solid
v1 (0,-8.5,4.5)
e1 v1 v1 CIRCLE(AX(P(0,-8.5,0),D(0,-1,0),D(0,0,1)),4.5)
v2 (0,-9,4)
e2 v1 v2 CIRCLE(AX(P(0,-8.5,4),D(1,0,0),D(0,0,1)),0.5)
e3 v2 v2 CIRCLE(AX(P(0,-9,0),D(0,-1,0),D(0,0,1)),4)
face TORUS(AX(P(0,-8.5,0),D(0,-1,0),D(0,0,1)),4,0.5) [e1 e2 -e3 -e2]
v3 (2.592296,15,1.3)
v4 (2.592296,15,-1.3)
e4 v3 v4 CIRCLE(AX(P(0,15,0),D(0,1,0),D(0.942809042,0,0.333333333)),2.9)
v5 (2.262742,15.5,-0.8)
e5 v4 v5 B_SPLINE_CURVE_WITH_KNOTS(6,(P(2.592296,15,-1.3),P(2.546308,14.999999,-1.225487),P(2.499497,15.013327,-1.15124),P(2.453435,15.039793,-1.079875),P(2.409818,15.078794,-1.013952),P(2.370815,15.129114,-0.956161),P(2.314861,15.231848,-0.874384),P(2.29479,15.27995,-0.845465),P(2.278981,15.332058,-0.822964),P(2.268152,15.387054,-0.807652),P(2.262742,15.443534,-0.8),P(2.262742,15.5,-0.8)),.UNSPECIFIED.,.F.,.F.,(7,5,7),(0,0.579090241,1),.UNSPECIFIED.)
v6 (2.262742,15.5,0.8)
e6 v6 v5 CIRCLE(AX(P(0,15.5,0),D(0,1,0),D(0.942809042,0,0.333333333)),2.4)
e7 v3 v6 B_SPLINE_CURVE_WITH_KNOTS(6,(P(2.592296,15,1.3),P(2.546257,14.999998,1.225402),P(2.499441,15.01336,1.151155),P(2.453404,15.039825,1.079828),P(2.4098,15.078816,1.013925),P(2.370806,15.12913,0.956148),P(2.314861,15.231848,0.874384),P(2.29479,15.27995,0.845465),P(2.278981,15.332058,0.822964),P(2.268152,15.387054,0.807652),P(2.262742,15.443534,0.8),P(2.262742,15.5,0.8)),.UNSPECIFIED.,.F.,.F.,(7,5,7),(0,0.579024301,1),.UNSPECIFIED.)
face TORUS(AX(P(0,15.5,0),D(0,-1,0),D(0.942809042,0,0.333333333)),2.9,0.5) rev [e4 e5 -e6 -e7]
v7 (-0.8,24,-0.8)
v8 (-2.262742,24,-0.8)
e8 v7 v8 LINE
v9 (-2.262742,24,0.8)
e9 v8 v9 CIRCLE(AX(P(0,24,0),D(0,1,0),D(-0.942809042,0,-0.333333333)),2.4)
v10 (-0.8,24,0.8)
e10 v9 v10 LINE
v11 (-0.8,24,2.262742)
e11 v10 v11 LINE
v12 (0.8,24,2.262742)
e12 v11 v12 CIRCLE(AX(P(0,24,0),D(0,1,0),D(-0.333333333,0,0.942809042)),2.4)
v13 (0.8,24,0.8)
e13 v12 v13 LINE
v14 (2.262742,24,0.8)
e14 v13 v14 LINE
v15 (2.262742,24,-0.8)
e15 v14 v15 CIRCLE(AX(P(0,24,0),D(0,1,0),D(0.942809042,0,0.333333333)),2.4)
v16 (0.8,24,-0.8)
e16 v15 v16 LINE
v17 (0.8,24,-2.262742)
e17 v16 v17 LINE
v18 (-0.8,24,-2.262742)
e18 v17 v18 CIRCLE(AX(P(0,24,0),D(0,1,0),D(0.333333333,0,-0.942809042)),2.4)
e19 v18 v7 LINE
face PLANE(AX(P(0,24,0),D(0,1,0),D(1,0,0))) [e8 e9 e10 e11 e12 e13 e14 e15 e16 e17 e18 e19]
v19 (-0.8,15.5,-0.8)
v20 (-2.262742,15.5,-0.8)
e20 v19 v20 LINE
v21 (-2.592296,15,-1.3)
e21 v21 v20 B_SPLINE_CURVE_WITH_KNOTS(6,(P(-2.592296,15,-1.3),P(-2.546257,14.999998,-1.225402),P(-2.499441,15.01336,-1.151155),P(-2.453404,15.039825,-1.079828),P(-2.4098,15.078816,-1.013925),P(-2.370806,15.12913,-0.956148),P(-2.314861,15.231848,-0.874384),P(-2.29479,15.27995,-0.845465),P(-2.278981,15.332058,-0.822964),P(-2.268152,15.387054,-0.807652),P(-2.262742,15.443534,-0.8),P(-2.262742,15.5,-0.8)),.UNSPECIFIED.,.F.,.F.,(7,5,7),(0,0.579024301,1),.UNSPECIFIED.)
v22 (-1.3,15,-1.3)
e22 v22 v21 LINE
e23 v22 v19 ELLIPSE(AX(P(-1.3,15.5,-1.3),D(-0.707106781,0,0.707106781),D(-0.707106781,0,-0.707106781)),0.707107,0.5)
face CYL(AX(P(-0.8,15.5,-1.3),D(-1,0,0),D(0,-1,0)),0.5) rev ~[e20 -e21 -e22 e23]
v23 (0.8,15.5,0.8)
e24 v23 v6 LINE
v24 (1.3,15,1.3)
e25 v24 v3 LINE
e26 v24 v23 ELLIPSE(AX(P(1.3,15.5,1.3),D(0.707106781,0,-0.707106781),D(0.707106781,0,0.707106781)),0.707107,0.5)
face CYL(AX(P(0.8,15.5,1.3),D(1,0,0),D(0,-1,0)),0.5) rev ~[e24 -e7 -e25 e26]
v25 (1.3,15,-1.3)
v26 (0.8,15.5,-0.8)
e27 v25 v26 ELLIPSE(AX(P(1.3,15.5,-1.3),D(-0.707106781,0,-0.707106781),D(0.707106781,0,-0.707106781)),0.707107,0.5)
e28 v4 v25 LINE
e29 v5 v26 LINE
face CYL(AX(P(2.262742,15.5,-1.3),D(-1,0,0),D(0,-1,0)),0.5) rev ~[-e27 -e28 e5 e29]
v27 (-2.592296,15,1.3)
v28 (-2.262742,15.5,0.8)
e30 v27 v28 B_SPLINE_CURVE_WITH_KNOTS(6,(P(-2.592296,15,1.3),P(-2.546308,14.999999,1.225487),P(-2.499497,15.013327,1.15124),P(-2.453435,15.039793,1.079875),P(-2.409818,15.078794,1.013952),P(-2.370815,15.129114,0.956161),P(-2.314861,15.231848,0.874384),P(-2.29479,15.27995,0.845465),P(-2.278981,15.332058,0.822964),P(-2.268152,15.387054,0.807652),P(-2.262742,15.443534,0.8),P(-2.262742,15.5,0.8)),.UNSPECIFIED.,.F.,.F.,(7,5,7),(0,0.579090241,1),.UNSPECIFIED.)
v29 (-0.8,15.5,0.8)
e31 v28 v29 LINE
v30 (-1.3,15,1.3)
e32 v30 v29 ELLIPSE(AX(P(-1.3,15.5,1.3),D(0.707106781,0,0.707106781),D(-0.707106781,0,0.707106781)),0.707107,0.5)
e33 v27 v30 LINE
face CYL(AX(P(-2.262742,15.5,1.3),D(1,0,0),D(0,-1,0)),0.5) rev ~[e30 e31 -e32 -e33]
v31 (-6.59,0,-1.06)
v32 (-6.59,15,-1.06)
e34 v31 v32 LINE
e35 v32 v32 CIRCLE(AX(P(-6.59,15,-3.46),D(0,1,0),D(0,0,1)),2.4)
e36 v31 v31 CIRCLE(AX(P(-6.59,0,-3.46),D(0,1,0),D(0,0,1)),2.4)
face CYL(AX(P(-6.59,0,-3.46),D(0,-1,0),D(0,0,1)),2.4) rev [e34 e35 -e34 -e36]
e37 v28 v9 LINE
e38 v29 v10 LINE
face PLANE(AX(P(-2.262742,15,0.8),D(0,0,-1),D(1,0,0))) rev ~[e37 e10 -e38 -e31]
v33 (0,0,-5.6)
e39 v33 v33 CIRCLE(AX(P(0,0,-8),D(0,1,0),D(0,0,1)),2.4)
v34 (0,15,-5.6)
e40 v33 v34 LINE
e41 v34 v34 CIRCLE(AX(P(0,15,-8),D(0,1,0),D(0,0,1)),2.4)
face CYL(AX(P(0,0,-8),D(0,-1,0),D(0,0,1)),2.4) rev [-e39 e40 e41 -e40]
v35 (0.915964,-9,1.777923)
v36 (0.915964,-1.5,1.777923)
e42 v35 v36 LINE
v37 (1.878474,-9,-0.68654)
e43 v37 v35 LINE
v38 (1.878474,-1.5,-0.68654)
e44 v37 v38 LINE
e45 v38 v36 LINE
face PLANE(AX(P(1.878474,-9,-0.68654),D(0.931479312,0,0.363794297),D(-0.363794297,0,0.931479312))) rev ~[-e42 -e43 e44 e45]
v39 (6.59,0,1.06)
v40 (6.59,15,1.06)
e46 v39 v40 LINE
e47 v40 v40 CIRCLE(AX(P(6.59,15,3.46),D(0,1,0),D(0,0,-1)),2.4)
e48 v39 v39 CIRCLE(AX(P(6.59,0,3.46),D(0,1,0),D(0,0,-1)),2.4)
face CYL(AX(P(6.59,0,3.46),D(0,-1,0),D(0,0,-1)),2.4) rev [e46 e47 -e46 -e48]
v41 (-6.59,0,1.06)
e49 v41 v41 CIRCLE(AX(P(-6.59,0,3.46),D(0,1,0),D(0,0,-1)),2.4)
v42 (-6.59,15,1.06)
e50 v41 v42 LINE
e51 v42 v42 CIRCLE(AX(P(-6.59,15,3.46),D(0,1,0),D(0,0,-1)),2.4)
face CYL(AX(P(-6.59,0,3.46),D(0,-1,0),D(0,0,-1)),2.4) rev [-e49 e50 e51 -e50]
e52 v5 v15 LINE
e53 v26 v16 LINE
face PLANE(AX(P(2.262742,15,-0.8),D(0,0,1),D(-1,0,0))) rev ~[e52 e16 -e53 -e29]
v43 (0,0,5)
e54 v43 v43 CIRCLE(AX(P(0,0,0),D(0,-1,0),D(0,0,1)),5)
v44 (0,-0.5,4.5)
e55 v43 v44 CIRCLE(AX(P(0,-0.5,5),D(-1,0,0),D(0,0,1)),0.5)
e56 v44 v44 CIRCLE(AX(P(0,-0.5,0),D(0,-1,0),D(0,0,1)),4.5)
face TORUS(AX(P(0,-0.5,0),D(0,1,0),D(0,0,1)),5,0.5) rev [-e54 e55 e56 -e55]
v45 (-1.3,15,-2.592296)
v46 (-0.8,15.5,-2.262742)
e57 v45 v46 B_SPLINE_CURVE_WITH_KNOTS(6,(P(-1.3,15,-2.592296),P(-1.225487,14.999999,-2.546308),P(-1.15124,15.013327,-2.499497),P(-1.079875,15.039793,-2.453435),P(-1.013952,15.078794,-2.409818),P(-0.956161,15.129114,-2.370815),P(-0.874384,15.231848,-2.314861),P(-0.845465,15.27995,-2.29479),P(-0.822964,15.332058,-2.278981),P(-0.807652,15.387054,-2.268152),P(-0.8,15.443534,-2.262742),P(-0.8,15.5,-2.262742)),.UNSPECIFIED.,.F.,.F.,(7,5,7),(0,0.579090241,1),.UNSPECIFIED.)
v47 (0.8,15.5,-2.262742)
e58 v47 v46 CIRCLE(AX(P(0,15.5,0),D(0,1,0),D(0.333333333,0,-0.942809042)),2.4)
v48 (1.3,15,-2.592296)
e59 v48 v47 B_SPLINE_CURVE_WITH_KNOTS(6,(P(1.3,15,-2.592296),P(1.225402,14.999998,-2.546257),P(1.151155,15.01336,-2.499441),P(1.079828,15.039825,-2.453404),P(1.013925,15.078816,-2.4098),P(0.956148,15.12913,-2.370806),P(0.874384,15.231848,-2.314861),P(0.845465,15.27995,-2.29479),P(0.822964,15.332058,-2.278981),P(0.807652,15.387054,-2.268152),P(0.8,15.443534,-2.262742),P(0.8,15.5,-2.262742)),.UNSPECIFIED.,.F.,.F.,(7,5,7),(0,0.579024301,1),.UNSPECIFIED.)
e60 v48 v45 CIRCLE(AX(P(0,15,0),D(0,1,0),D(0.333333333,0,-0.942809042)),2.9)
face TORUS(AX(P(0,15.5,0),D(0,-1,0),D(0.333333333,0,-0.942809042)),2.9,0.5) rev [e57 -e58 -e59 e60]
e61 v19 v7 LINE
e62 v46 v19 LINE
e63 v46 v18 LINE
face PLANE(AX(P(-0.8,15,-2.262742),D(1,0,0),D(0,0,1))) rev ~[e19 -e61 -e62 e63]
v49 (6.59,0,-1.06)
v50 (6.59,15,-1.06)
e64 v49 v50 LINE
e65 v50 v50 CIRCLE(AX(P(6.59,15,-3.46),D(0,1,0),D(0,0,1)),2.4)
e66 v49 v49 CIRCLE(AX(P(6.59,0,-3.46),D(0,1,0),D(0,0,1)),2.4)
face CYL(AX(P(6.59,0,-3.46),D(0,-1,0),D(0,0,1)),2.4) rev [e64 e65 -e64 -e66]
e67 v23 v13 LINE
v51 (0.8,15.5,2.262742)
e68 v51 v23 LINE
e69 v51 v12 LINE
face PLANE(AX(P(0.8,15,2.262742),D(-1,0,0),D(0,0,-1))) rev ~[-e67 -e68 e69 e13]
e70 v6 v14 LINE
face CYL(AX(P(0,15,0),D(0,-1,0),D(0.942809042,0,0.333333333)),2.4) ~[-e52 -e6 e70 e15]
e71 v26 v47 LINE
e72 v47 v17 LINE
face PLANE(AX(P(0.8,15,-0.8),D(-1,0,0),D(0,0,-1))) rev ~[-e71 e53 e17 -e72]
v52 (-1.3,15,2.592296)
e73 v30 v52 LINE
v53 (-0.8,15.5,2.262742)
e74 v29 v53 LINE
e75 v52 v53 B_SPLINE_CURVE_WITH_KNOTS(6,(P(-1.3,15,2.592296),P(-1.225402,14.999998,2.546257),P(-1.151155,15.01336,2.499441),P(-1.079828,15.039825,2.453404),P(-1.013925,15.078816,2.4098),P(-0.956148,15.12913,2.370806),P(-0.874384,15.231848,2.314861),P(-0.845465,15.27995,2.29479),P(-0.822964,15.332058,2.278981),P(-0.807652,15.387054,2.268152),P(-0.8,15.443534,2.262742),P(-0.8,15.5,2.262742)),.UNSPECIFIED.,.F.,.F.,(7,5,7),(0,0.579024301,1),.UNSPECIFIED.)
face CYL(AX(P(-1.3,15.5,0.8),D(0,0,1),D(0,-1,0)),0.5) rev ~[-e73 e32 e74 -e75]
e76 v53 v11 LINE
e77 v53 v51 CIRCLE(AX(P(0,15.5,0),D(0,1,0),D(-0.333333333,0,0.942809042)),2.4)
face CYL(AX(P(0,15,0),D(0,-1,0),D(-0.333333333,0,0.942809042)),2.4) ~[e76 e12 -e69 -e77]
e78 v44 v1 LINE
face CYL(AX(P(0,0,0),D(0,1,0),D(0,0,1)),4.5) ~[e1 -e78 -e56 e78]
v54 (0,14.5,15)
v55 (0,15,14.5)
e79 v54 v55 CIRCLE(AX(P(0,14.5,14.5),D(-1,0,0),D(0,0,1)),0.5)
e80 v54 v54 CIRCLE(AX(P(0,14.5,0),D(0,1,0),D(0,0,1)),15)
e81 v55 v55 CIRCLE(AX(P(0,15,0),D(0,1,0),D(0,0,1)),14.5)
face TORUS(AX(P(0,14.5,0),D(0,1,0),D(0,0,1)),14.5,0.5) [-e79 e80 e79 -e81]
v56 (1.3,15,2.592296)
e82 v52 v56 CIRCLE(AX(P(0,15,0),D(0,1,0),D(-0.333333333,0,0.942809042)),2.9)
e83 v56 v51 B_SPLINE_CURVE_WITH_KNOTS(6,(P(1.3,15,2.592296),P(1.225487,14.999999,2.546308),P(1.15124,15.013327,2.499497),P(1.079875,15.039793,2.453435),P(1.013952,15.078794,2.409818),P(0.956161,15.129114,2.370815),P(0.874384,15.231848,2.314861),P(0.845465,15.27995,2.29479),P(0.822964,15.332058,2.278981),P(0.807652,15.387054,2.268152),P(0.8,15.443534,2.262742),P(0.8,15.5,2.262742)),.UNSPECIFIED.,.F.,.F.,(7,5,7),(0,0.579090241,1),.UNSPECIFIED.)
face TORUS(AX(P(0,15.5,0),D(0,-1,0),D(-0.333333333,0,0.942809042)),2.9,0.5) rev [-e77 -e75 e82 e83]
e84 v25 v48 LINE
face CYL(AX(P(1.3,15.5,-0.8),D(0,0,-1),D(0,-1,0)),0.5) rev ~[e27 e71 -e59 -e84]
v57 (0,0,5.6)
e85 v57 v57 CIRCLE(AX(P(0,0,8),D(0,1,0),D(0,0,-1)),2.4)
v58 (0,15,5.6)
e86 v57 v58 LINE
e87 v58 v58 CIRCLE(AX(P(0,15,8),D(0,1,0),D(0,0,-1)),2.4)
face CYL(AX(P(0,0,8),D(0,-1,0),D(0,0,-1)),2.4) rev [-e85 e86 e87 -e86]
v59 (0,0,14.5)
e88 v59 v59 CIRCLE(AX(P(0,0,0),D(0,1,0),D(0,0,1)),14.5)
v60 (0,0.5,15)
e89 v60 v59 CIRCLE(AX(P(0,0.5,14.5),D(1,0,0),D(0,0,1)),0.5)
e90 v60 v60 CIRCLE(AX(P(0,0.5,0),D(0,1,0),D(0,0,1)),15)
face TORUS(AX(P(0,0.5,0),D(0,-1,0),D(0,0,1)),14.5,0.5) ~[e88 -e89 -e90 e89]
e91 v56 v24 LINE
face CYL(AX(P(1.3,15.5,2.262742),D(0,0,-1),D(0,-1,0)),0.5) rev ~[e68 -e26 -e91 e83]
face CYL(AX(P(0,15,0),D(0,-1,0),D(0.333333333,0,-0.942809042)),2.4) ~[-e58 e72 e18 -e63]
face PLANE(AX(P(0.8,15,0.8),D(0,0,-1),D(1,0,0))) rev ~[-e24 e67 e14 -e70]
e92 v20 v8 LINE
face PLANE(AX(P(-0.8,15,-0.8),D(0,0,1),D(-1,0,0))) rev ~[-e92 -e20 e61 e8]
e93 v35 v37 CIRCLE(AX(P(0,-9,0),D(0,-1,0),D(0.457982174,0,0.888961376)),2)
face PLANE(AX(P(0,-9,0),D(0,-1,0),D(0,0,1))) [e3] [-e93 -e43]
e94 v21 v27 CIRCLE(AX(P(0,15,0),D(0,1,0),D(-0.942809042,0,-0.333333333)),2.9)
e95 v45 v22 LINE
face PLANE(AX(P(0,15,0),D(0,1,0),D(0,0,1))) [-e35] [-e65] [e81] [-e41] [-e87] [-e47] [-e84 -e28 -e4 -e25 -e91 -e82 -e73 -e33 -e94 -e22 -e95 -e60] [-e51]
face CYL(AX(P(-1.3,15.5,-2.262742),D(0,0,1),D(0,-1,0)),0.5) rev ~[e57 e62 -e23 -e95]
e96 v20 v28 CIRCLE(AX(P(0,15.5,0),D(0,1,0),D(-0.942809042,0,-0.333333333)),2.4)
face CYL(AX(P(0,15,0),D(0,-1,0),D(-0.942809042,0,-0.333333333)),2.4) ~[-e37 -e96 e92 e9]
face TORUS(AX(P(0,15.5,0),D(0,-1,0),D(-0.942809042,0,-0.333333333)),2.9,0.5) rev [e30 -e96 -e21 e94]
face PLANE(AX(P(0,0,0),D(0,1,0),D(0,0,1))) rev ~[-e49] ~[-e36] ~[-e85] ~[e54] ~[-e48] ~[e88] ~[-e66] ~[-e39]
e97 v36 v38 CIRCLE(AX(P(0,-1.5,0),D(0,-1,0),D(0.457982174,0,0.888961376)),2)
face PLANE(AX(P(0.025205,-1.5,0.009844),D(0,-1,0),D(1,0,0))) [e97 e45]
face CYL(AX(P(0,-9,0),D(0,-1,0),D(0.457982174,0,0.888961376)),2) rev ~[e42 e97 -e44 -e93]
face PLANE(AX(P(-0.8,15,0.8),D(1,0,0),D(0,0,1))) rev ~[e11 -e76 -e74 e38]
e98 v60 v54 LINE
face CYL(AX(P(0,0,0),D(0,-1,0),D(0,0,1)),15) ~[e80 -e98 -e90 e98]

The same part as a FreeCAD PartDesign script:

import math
import FreeCAD as App
import Part
import Sketcher


def edges_at(feature, points):
    """Names of the edges that pass closest to the given points."""
    edges = feature.Shape.Edges
    near = lambda p: min(range(len(edges)), key=lambda i: edges[i].distToShape(Part.Vertex(*p))[0])
    return sorted({f"Edge{near(p) + 1}" for p in points})

doc = App.newDocument("Part")
body = doc.addObject("PartDesign::Body", "Body")

# Sketch on XZ plane
sketch1 = doc.addObject("Sketcher::SketchObject", "Sketch")
body.addObject(sketch1)
sketch1.AttachmentSupport = (doc.XZ_Plane, [""])
sketch1.MapMode = "FlatFace"
sketch1.addGeometry(Part.Circle(App.Vector(0, 0, 0), App.Vector(0, 0, 1), 15), False)
sketch1.addConstraint(Sketcher.Constraint("Coincident", 0, 3, -1, 1))
sketch1.addConstraint(Sketcher.Constraint("Diameter", 0, 30.0))
pad1 = doc.addObject("PartDesign::Pad", "Pad")
body.addObject(pad1)
pad1.Profile = sketch1
pad1.Length = 15
pad1.Reversed = True

# Sketch on XZ plane
sketch2 = doc.addObject("Sketcher::SketchObject", "Sketch001")
body.addObject(sketch2)
sketch2.AttachmentSupport = (doc.XZ_Plane, [""])
sketch2.MapMode = "FlatFace"
sketch2.addGeometry(Part.Circle(App.Vector(-6.6, -3.5, 0), App.Vector(0, 0, 1), 2.4), False)
sketch2.addGeometry(Part.Circle(App.Vector(6.6, -3.5, 0), App.Vector(0, 0, 1), 2.4), False)
sketch2.addGeometry(Part.Circle(App.Vector(6.6, 3.5, 0), App.Vector(0, 0, 1), 2.4), False)
sketch2.addGeometry(Part.Circle(App.Vector(0, -8, 0), App.Vector(0, 0, 1), 2.4), False)
sketch2.addGeometry(Part.Circle(App.Vector(0, 8, 0), App.Vector(0, 0, 1), 2.4), False)
sketch2.addGeometry(Part.Circle(App.Vector(-6.6, 3.5, 0), App.Vector(0, 0, 1), 2.4), False)
sketch2.addConstraint(Sketcher.Constraint("Equal", 0, 1))
sketch2.addConstraint(Sketcher.Constraint("Equal", 1, 2))
sketch2.addConstraint(Sketcher.Constraint("Equal", 2, 3))
sketch2.addConstraint(Sketcher.Constraint("Equal", 3, 4))
sketch2.addConstraint(Sketcher.Constraint("Equal", 4, 5))
sketch2.addConstraint(Sketcher.Constraint("Symmetric", 0, 3, 2, 3, -1, 1))
sketch2.addConstraint(Sketcher.Constraint("Symmetric", 3, 3, 4, 3, -1, 1))
sketch2.addConstraint(Sketcher.Constraint("Symmetric", 1, 3, 5, 3, -1, 1))
sketch2.addConstraint(Sketcher.Constraint("Symmetric", 0, 3, 1, 3, -2))
sketch2.addConstraint(Sketcher.Constraint("PointOnObject", 3, 3, -2))
sketch2.addConstraint(Sketcher.Constraint("Diameter", 0, 4.8))
sketch2.addConstraint(Sketcher.Constraint("DistanceY", 3, 3, -1, 1, 8.0))
sketch2.addConstraint(Sketcher.Constraint("DistanceX", 0, 3, -1, 1, 6.59))
sketch2.addConstraint(Sketcher.Constraint("DistanceY", 0, 3, -1, 1, 3.46))
pocket1 = doc.addObject("PartDesign::Pocket", "Pocket")
body.addObject(pocket1)
pocket1.Profile = sketch2
pocket1.Length = 15

# Sketch on XZ plane
sketch3 = doc.addObject("Sketcher::SketchObject", "Sketch002")
body.addObject(sketch3)
sketch3.AttachmentSupport = (doc.XZ_Plane, [""])
sketch3.MapMode = "FlatFace"
sketch3.AttachmentOffset = App.Placement(App.Vector(0, 0, -15), App.Rotation())
sketch3.addGeometry(Part.LineSegment(App.Vector(0.8, 0.8, 0), App.Vector(2.3, 0.8, 0)), False)
sketch3.addGeometry(Part.ArcOfCircle(Part.Circle(App.Vector(0, 0, 0), App.Vector(0, 0, 1), 2.4), math.radians(-19), math.radians(19)), False)
sketch3.addGeometry(Part.LineSegment(App.Vector(2.3, -0.8, 0), App.Vector(0.8, -0.8, 0)), False)
sketch3.addGeometry(Part.LineSegment(App.Vector(0.8, -0.8, 0), App.Vector(0.8, -2.3, 0)), False)
sketch3.addGeometry(Part.ArcOfCircle(Part.Circle(App.Vector(0, 0, 0), App.Vector(0, 0, 1), 2.4), math.radians(-109), math.radians(-71)), False)
sketch3.addGeometry(Part.LineSegment(App.Vector(-0.8, -2.3, 0), App.Vector(-0.8, -0.8, 0)), False)
sketch3.addGeometry(Part.LineSegment(App.Vector(-0.8, -0.8, 0), App.Vector(-2.3, -0.8, 0)), False)
sketch3.addGeometry(Part.ArcOfCircle(Part.Circle(App.Vector(0, 0, 0), App.Vector(0, 0, 1), 2.4), math.radians(161), math.radians(199)), False)
sketch3.addGeometry(Part.LineSegment(App.Vector(-2.3, 0.8, 0), App.Vector(-0.8, 0.8, 0)), False)
sketch3.addGeometry(Part.LineSegment(App.Vector(-0.8, 0.8, 0), App.Vector(-0.8, 2.3, 0)), False)
sketch3.addGeometry(Part.ArcOfCircle(Part.Circle(App.Vector(0, 0, 0), App.Vector(0, 0, 1), 2.4), math.radians(71), math.radians(109)), False)
sketch3.addGeometry(Part.LineSegment(App.Vector(0.8, 2.3, 0), App.Vector(0.8, 0.8, 0)), False)
sketch3.addConstraint(Sketcher.Constraint("Coincident", 0, 2, 1, 2))
sketch3.addConstraint(Sketcher.Constraint("Coincident", 1, 1, 2, 1))
sketch3.addConstraint(Sketcher.Constraint("Coincident", 2, 2, 3, 1))
sketch3.addConstraint(Sketcher.Constraint("Coincident", 3, 2, 4, 2))
sketch3.addConstraint(Sketcher.Constraint("Coincident", 4, 1, 5, 1))
sketch3.addConstraint(Sketcher.Constraint("Coincident", 5, 2, 6, 1))
sketch3.addConstraint(Sketcher.Constraint("Coincident", 6, 2, 7, 2))
sketch3.addConstraint(Sketcher.Constraint("Coincident", 7, 1, 8, 1))
sketch3.addConstraint(Sketcher.Constraint("Coincident", 8, 2, 9, 1))
sketch3.addConstraint(Sketcher.Constraint("Coincident", 9, 2, 10, 2))
sketch3.addConstraint(Sketcher.Constraint("Coincident", 10, 1, 11, 1))
sketch3.addConstraint(Sketcher.Constraint("Coincident", 11, 2, 0, 1))
sketch3.addConstraint(Sketcher.Constraint("Horizontal", 0))
sketch3.addConstraint(Sketcher.Constraint("Horizontal", 2))
sketch3.addConstraint(Sketcher.Constraint("Vertical", 3))
sketch3.addConstraint(Sketcher.Constraint("Vertical", 5))
sketch3.addConstraint(Sketcher.Constraint("Horizontal", 6))
sketch3.addConstraint(Sketcher.Constraint("Horizontal", 8))
sketch3.addConstraint(Sketcher.Constraint("Vertical", 9))
sketch3.addConstraint(Sketcher.Constraint("Vertical", 11))
sketch3.addConstraint(Sketcher.Constraint("Coincident", 1, 3, -1, 1))
sketch3.addConstraint(Sketcher.Constraint("Coincident", 4, 3, -1, 1))
sketch3.addConstraint(Sketcher.Constraint("Coincident", 7, 3, -1, 1))
sketch3.addConstraint(Sketcher.Constraint("Coincident", 10, 3, -1, 1))
sketch3.addConstraint(Sketcher.Constraint("Equal", 1, 4))
sketch3.addConstraint(Sketcher.Constraint("Equal", 4, 7))
sketch3.addConstraint(Sketcher.Constraint("Equal", 7, 10))
sketch3.addConstraint(Sketcher.Constraint("Symmetric", 2, 2, 8, 2, -1, 1))
sketch3.addConstraint(Sketcher.Constraint("Symmetric", 5, 2, 11, 2, -1, 1))
sketch3.addConstraint(Sketcher.Constraint("Symmetric", 2, 2, 5, 2, -2))
sketch3.addConstraint(Sketcher.Constraint("Equal", 8, 3))
sketch3.addConstraint(Sketcher.Constraint("Radius", 1, 2.4))
sketch3.addConstraint(Sketcher.Constraint("DistanceY", -1, 1, 0, 2, 0.8))
pad2 = doc.addObject("PartDesign::Pad", "Pad001")
body.addObject(pad2)
pad2.Profile = sketch3
pad2.Length = 9
pad2.Reversed = True

# Sketch on XZ plane
sketch4 = doc.addObject("Sketcher::SketchObject", "Sketch003")
body.addObject(sketch4)
sketch4.AttachmentSupport = (doc.XZ_Plane, [""])
sketch4.MapMode = "FlatFace"
sketch4.addGeometry(Part.Circle(App.Vector(0, 0, 0), App.Vector(0, 0, 1), 4.5), False)
sketch4.addConstraint(Sketcher.Constraint("Coincident", 0, 3, -1, 1))
sketch4.addConstraint(Sketcher.Constraint("Diameter", 0, 9.0))
pad3 = doc.addObject("PartDesign::Pad", "Pad002")
body.addObject(pad3)
pad3.Profile = sketch4
pad3.Length = 9

# Sketch on XZ plane
sketch5 = doc.addObject("Sketcher::SketchObject", "Sketch004")
body.addObject(sketch5)
sketch5.AttachmentSupport = (doc.XZ_Plane, [""])
sketch5.MapMode = "FlatFace"
sketch5.AttachmentOffset = App.Placement(App.Vector(0, 0, 9), App.Rotation())
sketch5.addGeometry(Part.LineSegment(App.Vector(1.9, -0.7, 0), App.Vector(0.9, 1.8, 0)), False)
sketch5.addGeometry(Part.ArcOfCircle(Part.Circle(App.Vector(0, 0, 0), App.Vector(0, 0, 1), 2), math.radians(63), math.radians(340)), False)
sketch5.addConstraint(Sketcher.Constraint("Coincident", 0, 1, 1, 2))
sketch5.addConstraint(Sketcher.Constraint("Coincident", 1, 1, 0, 2))
sketch5.addConstraint(Sketcher.Constraint("Coincident", 1, 3, -1, 1))
sketch5.addConstraint(Sketcher.Constraint("Radius", 1, 2.0))
sketch5.addConstraint(Sketcher.Constraint("Distance", 0, 2.645751))
sketch5.addConstraint(Sketcher.Constraint("DistanceY", 0, 1, -1, 1, 0.68654))
pocket2 = doc.addObject("PartDesign::Pocket", "Pocket001")
body.addObject(pocket2)
pocket2.Profile = sketch5
pocket2.Length = 7.5
doc.recompute()

fillet = doc.addObject("PartDesign::Fillet", "Fillet")
body.addObject(fillet)
fillet.Base = (pocket2, edges_at(pocket2, [
    (0, 0, -15),
    (1.531, 15, 0.8),
    (2.4, 15, 0),
    (0.8, 15, -1.531),
    (0, 15, -2.4),
    (-1.531, 15, -0.8),
    (-2.4, 15, 0),
    (0, 15, -15),
    (-0.8, 15, 1.531),
    (0, 15, 2.4),
    (0.8, 15, 1.531),
    (-1.531, 15, 0.8),
    (-0.8, 15, -1.531),
    (1.531, 15, -0.8),
    (0, 0, -4.5),
    (0, -9, -4.5),
]))
fillet.Radius = 0.5

doc.recompute()
